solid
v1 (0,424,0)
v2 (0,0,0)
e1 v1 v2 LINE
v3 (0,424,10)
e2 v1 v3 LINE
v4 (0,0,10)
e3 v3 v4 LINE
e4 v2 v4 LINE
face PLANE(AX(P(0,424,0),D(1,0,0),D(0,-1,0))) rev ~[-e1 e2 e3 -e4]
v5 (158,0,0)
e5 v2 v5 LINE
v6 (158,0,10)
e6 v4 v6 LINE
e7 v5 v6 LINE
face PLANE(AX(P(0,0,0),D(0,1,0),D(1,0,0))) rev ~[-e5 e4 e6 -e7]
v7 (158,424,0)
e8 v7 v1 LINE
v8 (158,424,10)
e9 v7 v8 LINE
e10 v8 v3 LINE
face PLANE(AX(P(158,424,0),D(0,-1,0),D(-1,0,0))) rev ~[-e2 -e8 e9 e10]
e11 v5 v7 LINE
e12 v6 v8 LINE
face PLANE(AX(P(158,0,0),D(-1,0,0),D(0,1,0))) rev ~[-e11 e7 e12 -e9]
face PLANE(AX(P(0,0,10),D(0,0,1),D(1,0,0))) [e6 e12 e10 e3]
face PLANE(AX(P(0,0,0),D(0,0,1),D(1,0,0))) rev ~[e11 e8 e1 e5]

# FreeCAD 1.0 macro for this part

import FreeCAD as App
import Part
import Sketcher
from FreeCAD import Vector
Q = App.Units.Quantity


def add_polygon(sketch, points):
    """Adds a closed chain of lines whose ends are joined by coincident constraints."""
    first, n = sketch.GeometryCount, len(points)
    for a, b in zip(points, points[1:] + points[:1]):
        sketch.addGeometry(Part.LineSegment(App.Vector(*a, 0), App.Vector(*b, 0)), False)
    for i in range(n):
        sketch.addConstraint(Sketcher.Constraint("Coincident", first + i, 2, first + (i + 1) % n, 1))

doc = App.newDocument("Part")
params = doc.addObject("Spreadsheet::Sheet", "Params")
for row, (alias, value) in enumerate([
    ("sketch1_width", "158 mm"),
    ("sketch1_height", "424 mm"),
    ("pad1_length", "10 mm"),
], start=1):
    params.set(f"A{row}", alias)
    params.set(f"B{row}", "=" + value)
    params.setAlias(f"B{row}", alias)

body = doc.addObject("PartDesign::Body", "Body")

sketch1 = doc.addObject("Sketcher::SketchObject", "Sketch")
body.addObject(sketch1)
sketch1.AttachmentSupport = (doc.XY_Plane, [""])
sketch1.MapMode = "FlatFace"
add_polygon(sketch1, [(0, 424), (0, 0), (158, 0), (158, 424)])
sketch1.addConstraint(Sketcher.Constraint("Vertical", 0))
sketch1.addConstraint(Sketcher.Constraint("Horizontal", 1))
sketch1.addConstraint(Sketcher.Constraint("Vertical", 2))
sketch1.addConstraint(Sketcher.Constraint("Horizontal", 3))
sketch1.addConstraint(Sketcher.Constraint("Coincident", 0, 2, -1, 1))
sketch1.addConstraint(Sketcher.Constraint("DistanceX", 1, 1, 1, 2, Q("158 mm")))
sketch1.addConstraint(Sketcher.Constraint("DistanceY", 0, 2, 0, 1, Q("424 mm")))
sketch1.setExpression("Constraints[9]", "Params.sketch1_width")
sketch1.setExpression("Constraints[10]", "Params.sketch1_height")
pad1 = doc.addObject("PartDesign::Pad", "Pad")
body.addObject(pad1)
pad1.Profile = sketch1
pad1.setExpression("Length", "Params.pad1_length")

doc.recompute()
